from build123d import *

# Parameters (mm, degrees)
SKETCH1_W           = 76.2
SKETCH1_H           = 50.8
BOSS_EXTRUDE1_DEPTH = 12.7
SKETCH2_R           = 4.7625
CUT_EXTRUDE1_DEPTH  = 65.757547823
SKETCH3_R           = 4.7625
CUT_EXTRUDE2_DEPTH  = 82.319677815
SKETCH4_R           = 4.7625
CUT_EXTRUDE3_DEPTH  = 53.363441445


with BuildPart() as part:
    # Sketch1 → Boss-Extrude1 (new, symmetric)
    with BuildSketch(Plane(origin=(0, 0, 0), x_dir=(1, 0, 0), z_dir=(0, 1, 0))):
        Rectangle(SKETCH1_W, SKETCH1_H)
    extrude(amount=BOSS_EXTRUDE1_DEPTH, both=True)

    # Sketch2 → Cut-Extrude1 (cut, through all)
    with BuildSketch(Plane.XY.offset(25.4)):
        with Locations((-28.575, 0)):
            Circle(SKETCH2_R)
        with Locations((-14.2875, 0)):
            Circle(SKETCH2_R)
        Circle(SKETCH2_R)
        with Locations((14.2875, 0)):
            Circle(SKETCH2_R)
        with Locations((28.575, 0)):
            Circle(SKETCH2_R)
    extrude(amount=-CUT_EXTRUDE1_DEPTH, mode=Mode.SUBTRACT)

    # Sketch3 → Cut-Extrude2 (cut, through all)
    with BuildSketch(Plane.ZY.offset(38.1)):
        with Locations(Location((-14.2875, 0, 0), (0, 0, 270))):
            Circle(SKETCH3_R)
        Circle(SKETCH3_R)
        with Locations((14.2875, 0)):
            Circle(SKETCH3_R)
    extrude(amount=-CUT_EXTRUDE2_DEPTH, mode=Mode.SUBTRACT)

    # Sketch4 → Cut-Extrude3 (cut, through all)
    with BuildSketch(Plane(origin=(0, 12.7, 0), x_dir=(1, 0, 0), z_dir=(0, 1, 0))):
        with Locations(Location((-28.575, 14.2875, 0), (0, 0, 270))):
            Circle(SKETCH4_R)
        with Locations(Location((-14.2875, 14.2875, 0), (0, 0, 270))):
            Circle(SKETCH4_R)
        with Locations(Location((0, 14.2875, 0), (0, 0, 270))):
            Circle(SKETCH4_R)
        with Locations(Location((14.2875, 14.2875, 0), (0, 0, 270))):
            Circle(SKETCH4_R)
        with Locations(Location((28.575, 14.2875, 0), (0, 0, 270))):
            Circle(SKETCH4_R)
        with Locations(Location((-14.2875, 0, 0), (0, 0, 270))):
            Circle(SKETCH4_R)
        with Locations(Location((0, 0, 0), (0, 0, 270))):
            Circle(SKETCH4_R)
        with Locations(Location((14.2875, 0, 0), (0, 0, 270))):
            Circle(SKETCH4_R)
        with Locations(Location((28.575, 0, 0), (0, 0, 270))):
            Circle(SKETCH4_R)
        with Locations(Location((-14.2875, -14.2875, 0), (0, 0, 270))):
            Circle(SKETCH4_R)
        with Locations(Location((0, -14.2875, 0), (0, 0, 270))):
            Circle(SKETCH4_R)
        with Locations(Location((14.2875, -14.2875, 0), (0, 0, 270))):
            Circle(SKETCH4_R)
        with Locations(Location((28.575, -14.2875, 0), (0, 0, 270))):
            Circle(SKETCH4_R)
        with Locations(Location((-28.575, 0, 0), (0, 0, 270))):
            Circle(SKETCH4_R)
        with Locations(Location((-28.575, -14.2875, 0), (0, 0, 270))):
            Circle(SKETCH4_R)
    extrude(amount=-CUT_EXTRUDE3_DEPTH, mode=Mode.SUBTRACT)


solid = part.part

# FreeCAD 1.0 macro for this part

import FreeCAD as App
import Part
import Sketcher
Q = App.Units.Quantity

doc = App.newDocument("Part")
body = doc.addObject("PartDesign::Body", "Body")

sketch1 = body.newObject("Sketcher::SketchObject", "Sketch")
sketch1.AttachmentSupport = (doc.getObject("XZ_Plane"), [""])
sketch1.MapMode = "FlatFace"
sketch1.addGeometry(Part.LineSegment(App.Vector(-38, -25, 0), App.Vector(-38, 25, 0)), False)
sketch1.addGeometry(Part.LineSegment(App.Vector(-38, 25, 0), App.Vector(38, 25, 0)), False)
sketch1.addGeometry(Part.LineSegment(App.Vector(38, 25, 0), App.Vector(38, -25, 0)), False)
sketch1.addGeometry(Part.LineSegment(App.Vector(38, -25, 0), App.Vector(-38, -25, 0)), False)
sketch1.addConstraint(Sketcher.Constraint("Coincident", 0, 2, 1, 1))
sketch1.addConstraint(Sketcher.Constraint("Coincident", 1, 2, 2, 1))
sketch1.addConstraint(Sketcher.Constraint("Coincident", 2, 2, 3, 1))
sketch1.addConstraint(Sketcher.Constraint("Coincident", 3, 2, 0, 1))
sketch1.addConstraint(Sketcher.Constraint("Vertical", 0))
sketch1.addConstraint(Sketcher.Constraint("Horizontal", 1))
sketch1.addConstraint(Sketcher.Constraint("Vertical", 2))
sketch1.addConstraint(Sketcher.Constraint("Horizontal", 3))
sketch1.addConstraint(Sketcher.Constraint("Symmetric", 0, 2, 2, 2, -1, 1))
sketch1.addConstraint(Sketcher.Constraint("DistanceX", 1, 1, 1, 2, Q("3 in")))
sketch1.addConstraint(Sketcher.Constraint("DistanceY", 0, 1, 0, 2, Q("2 in")))
pad1 = body.newObject("PartDesign::Pad", "Pad")
pad1.Profile = sketch1
pad1.Length = Q("1 in")
pad1.Midplane = True

sketch2 = body.newObject("Sketcher::SketchObject", "Sketch001")
sketch2.AttachmentSupport = (doc.getObject("XY_Plane"), [""])
sketch2.MapMode = "FlatFace"
sketch2.AttachmentOffset = App.Placement(App.Vector(0, 0, 1 * 25.4), App.Rotation())
sketch2.addGeometry(Part.Circle(App.Vector(-28.6, 0, 0), App.Vector(0, 0, 1), 4.8), False)
sketch2.addGeometry(Part.Circle(App.Vector(-14.3, 0, 0), App.Vector(0, 0, 1), 4.8), False)
sketch2.addGeometry(Part.Circle(App.Vector(0, 0, 0), App.Vector(0, 0, 1), 4.8), False)
sketch2.addGeometry(Part.Circle(App.Vector(14.3, 0, 0), App.Vector(0, 0, 1), 4.8), False)
sketch2.addGeometry(Part.Circle(App.Vector(28.6, 0, 0), App.Vector(0, 0, 1), 4.8), False)
sketch2.addConstraint(Sketcher.Constraint("Coincident", 2, 3, -1, 1))
sketch2.addConstraint(Sketcher.Constraint("Equal", 0, 1))
sketch2.addConstraint(Sketcher.Constraint("Equal", 1, 2))
sketch2.addConstraint(Sketcher.Constraint("Equal", 2, 3))
sketch2.addConstraint(Sketcher.Constraint("Equal", 3, 4))
sketch2.addConstraint(Sketcher.Constraint("Symmetric", 1, 3, 3, 3, -1, 1))
sketch2.addConstraint(Sketcher.Constraint("Symmetric", 0, 3, 4, 3, -1, 1))
sketch2.addConstraint(Sketcher.Constraint("PointOnObject", 0, 3, -1))
sketch2.addConstraint(Sketcher.Constraint("PointOnObject", 1, 3, -1))
sketch2.addConstraint(Sketcher.Constraint("Diameter", 0, Q("0.375 in")))
sketch2.addConstraint(Sketcher.Constraint("DistanceX", 0, 3, 4, 3, Q("2.25 in")))
sketch2.addConstraint(Sketcher.Constraint("DistanceX", 1, 3, -1, 1, Q("0.5625 in")))
pocket1 = body.newObject("PartDesign::Pocket", "Pocket")
pocket1.Profile = sketch2
pocket1.Type = "ThroughAll"

sketch3 = body.newObject("Sketcher::SketchObject", "Sketch002")
sketch3.AttachmentSupport = (doc.getObject("YZ_Plane"), [""])
sketch3.MapMode = "FlatFace"
sketch3.AttachmentOffset = App.Placement(App.Vector(0, 0, -1.5 * 25.4), App.Rotation())
sketch3.addGeometry(Part.Circle(App.Vector(0, -14.3, 0), App.Vector(0, 0, 1), 4.8), False)
sketch3.addGeometry(Part.Circle(App.Vector(0, 0, 0), App.Vector(0, 0, 1), 4.8), False)
sketch3.addGeometry(Part.Circle(App.Vector(0, 14.3, 0), App.Vector(0, 0, 1), 4.8), False)
sketch3.addConstraint(Sketcher.Constraint("Coincident", 1, 3, -1, 1))
sketch3.addConstraint(Sketcher.Constraint("Equal", 0, 1))
sketch3.addConstraint(Sketcher.Constraint("Equal", 1, 2))
sketch3.addConstraint(Sketcher.Constraint("Symmetric", 0, 3, 2, 3, -1, 1))
sketch3.addConstraint(Sketcher.Constraint("PointOnObject", 0, 3, -2))
sketch3.addConstraint(Sketcher.Constraint("Diameter", 0, Q("0.375 in")))
sketch3.addConstraint(Sketcher.Constraint("DistanceY", 0, 3, -1, 1, Q("0.5625 in")))
pocket2 = body.newObject("PartDesign::Pocket", "Pocket001")
pocket2.Profile = sketch3
pocket2.Type = "ThroughAll"
pocket2.Reversed = True

sketch4 = body.newObject("Sketcher::SketchObject", "Sketch003")
sketch4.AttachmentSupport = (doc.getObject("XZ_Plane"), [""])
sketch4.MapMode = "FlatFace"
sketch4.AttachmentOffset = App.Placement(App.Vector(0, 0, -0.5 * 25.4), App.Rotation())
sketch4.addGeometry(Part.Circle(App.Vector(-28.6, -14.3, 0), App.Vector(0, 0, 1), 4.8), False)
sketch4.addGeometry(Part.Circle(App.Vector(-14.3, -14.3, 0), App.Vector(0, 0, 1), 4.8), False)
sketch4.addGeometry(Part.Circle(App.Vector(0, -14.3, 0), App.Vector(0, 0, 1), 4.8), False)
sketch4.addGeometry(Part.Circle(App.Vector(14.3, -14.3, 0), App.Vector(0, 0, 1), 4.8), False)
sketch4.addGeometry(Part.Circle(App.Vector(28.6, -14.3, 0), App.Vector(0, 0, 1), 4.8), False)
sketch4.addGeometry(Part.Circle(App.Vector(-14.3, 0, 0), App.Vector(0, 0, 1), 4.8), False)
sketch4.addGeometry(Part.Circle(App.Vector(0, 0, 0), App.Vector(0, 0, 1), 4.8), False)
sketch4.addGeometry(Part.Circle(App.Vector(14.3, 0, 0), App.Vector(0, 0, 1), 4.8), False)
sketch4.addGeometry(Part.Circle(App.Vector(28.6, 0, 0), App.Vector(0, 0, 1), 4.8), False)
sketch4.addGeometry(Part.Circle(App.Vector(-14.3, 14.3, 0), App.Vector(0, 0, 1), 4.8), False)
sketch4.addGeometry(Part.Circle(App.Vector(0, 14.3, 0), App.Vector(0, 0, 1), 4.8), False)
sketch4.addGeometry(Part.Circle(App.Vector(14.3, 14.3, 0), App.Vector(0, 0, 1), 4.8), False)
sketch4.addGeometry(Part.Circle(App.Vector(28.6, 14.3, 0), App.Vector(0, 0, 1), 4.8), False)
sketch4.addGeometry(Part.Circle(App.Vector(-28.6, 0, 0), App.Vector(0, 0, 1), 4.8), False)
sketch4.addGeometry(Part.Circle(App.Vector(-28.6, 14.3, 0), App.Vector(0, 0, 1), 4.8), False)
sketch4.addConstraint(Sketcher.Constraint("Coincident", 6, 3, -1, 1))
sketch4.addConstraint(Sketcher.Constraint("Equal", 0, 1))
sketch4.addConstraint(Sketcher.Constraint("Equal", 1, 2))
sketch4.addConstraint(Sketcher.Constraint("Equal", 2, 3))
sketch4.addConstraint(Sketcher.Constraint("Equal", 3, 4))
sketch4.addConstraint(Sketcher.Constraint("Equal", 4, 5))
sketch4.addConstraint(Sketcher.Constraint("Equal", 5, 6))
sketch4.addConstraint(Sketcher.Constraint("Equal", 6, 7))
sketch4.addConstraint(Sketcher.Constraint("Equal", 7, 8))
sketch4.addConstraint(Sketcher.Constraint("Equal", 8, 9))
sketch4.addConstraint(Sketcher.Constraint("Equal", 9, 10))
sketch4.addConstraint(Sketcher.Constraint("Equal", 10, 11))
sketch4.addConstraint(Sketcher.Constraint("Equal", 11, 12))
sketch4.addConstraint(Sketcher.Constraint("Equal", 12, 13))
sketch4.addConstraint(Sketcher.Constraint("Equal", 13, 14))
sketch4.addConstraint(Sketcher.Constraint("Symmetric", 5, 3, 7, 3, -1, 1))
sketch4.addConstraint(Sketcher.Constraint("Symmetric", 3, 3, 9, 3, -1, 1))
sketch4.addConstraint(Sketcher.Constraint("Symmetric", 2, 3, 10, 3, -1, 1))
sketch4.addConstraint(Sketcher.Constraint("Symmetric", 1, 3, 11, 3, -1, 1))
sketch4.addConstraint(Sketcher.Constraint("Symmetric", 0, 3, 12, 3, -1, 1))
sketch4.addConstraint(Sketcher.Constraint("Symmetric", 8, 3, 13, 3, -1, 1))
sketch4.addConstraint(Sketcher.Constraint("Symmetric", 4, 3, 14, 3, -1, 1))
sketch4.addConstraint(Sketcher.Constraint("Symmetric", 1, 3, 3, 3, -2))
sketch4.addConstraint(Sketcher.Constraint("Symmetric", 0, 3, 4, 3, -2))
sketch4.addConstraint(Sketcher.Constraint("PointOnObject", 2, 3, -2))
sketch4.addConstraint(Sketcher.Constraint("PointOnObject", 5, 3, -1))
sketch4.addConstraint(Sketcher.Constraint("PointOnObject", 8, 3, -1))
sketch4.addConstraint(Sketcher.Constraint("Horizontal", 0, 3, 1, 3))
sketch4.addConstraint(Sketcher.Constraint("Horizontal", 1, 3, 2, 3))
sketch4.addConstraint(Sketcher.Constraint("Vertical", 1, 3, 5, 3))
sketch4.addConstraint(Sketcher.Constraint("Vertical", 4, 3, 8, 3))
sketch4.addConstraint(Sketcher.Constraint("Diameter", 0, Q("0.375 in")))
sketch4.addConstraint(Sketcher.Constraint("DistanceX", 0, 3, 4, 3, Q("2.25 in")))
sketch4.addConstraint(Sketcher.Constraint("DistanceY", 0, 3, -1, 1, Q("0.5625 in")))
sketch4.addConstraint(Sketcher.Constraint("DistanceX", 1, 3, -1, 1, Q("0.5625 in")))
pocket3 = body.newObject("PartDesign::Pocket", "Pocket002")
pocket3.Profile = sketch4
pocket3.Type = "ThroughAll"
pocket3.Reversed = True

doc.recompute()
